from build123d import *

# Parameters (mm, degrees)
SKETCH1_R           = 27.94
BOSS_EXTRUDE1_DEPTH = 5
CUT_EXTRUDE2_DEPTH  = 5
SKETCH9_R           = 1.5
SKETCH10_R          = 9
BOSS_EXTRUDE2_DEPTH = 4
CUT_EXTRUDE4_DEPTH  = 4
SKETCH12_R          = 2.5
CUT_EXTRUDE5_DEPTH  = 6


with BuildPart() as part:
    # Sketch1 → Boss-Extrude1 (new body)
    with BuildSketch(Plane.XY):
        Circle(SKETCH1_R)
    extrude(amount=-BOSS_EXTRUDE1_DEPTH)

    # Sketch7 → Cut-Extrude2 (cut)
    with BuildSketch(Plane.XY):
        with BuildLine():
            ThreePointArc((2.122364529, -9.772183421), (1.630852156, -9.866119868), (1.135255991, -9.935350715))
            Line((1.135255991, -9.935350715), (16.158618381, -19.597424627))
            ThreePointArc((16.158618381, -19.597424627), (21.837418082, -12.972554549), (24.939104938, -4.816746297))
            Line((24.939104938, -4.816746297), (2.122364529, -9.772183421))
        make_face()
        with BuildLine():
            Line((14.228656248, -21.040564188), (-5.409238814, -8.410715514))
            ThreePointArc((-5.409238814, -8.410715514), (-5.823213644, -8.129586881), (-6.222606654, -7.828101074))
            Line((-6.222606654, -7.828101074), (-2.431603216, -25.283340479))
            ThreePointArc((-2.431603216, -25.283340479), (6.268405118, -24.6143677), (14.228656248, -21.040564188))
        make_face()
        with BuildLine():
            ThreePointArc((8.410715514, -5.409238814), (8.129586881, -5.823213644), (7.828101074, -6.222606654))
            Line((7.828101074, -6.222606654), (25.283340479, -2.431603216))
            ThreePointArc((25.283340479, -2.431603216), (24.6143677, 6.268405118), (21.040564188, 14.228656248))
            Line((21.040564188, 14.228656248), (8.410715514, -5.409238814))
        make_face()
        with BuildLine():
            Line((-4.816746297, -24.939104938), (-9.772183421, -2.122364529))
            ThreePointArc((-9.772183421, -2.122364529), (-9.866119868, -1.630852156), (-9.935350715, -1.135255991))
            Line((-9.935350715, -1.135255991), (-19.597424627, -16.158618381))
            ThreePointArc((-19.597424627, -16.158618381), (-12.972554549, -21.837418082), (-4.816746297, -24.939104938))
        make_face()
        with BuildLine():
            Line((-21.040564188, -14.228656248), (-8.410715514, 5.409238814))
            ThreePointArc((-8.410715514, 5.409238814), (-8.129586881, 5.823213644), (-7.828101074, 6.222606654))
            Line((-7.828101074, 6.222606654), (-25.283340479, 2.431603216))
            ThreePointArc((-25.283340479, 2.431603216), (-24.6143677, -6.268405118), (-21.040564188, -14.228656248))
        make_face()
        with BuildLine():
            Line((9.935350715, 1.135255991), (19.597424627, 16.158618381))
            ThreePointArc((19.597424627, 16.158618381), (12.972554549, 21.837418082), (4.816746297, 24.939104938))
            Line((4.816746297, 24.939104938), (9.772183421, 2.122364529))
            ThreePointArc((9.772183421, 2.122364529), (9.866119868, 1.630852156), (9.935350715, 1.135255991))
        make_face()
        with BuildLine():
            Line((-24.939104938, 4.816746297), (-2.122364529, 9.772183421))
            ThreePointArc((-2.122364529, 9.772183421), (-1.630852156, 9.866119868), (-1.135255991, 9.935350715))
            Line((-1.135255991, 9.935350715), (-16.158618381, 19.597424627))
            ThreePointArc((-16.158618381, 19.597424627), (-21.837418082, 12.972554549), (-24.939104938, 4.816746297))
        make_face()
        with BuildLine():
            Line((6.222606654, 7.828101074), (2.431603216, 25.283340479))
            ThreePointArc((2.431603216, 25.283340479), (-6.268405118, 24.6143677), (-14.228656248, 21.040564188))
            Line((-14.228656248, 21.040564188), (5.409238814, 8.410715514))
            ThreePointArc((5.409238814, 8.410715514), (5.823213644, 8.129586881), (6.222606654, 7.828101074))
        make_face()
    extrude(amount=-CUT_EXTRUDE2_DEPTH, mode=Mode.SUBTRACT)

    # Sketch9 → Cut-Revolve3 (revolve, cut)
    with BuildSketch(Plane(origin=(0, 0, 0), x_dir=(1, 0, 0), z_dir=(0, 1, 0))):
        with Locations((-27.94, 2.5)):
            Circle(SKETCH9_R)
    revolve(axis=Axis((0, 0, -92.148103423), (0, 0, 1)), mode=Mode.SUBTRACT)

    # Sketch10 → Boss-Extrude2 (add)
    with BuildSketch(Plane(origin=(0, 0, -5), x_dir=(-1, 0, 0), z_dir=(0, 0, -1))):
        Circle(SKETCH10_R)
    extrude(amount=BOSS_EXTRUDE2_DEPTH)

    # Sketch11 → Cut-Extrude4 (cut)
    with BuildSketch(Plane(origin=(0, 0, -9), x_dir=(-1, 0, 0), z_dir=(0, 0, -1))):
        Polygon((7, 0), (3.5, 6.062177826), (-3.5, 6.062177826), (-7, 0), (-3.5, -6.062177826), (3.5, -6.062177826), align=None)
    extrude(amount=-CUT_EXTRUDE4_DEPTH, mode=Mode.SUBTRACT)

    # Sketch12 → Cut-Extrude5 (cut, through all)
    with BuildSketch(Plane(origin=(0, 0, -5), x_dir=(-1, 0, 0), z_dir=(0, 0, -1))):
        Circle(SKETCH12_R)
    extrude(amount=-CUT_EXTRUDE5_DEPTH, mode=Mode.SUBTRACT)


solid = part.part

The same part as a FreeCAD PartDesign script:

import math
import FreeCAD as App
import Part
import Sketcher
Q = App.Units.Quantity

doc = App.newDocument("Part")
params = doc.addObject("Spreadsheet::Sheet", "Params")
for row, (alias, value) in enumerate([
    ("sketch1_diameter", "55.88 mm"),
    ("pad1_length", "5 mm"),
    ("sketch2_radius", "10 mm"),
    ("sketch2_radius2", "25.4 mm"),
    ("pocket1_length", "5 mm"),
    ("sketch3_diameter", "3 mm"),
    ("groove_angle", "360 deg"),
    ("sketch4_diameter", "18 mm"),
    ("pad2_length", "4 mm"),
    ("sketch5_width", "7 mm"),
    ("sketch5_length", "7 mm"),
    ("pocket2_length", "4 mm"),
    ("sketch6_diameter", "5 mm"),
], start=1):
    params.set(f"A{row}", alias)
    params.set(f"B{row}", "=" + value)
    params.setAlias(f"B{row}", alias)

body = doc.addObject("PartDesign::Body", "Body")

# Sketch on XY plane
sketch1 = doc.addObject("Sketcher::SketchObject", "Sketch")
body.addObject(sketch1)
sketch1.AttachmentSupport = (doc.XY_Plane, [""])
sketch1.MapMode = "FlatFace"
sketch1.addGeometry(Part.Circle(App.Vector(0, 0, 0), App.Vector(0, 0, 1), 28), False)
sketch1.addConstraint([
    Sketcher.Constraint("Coincident", 0, 3, -1, 1),
    Sketcher.Constraint("Diameter", 0, 55.88),
])
sketch1.setExpression("Constraints[1]", "Params.sketch1_diameter")
pad1 = doc.addObject("PartDesign::Pad", "Pad")
body.addObject(pad1)
pad1.Profile = sketch1
pad1.setExpression("Length", "Params.pad1_length")
pad1.Reversed = True

# Sketch on XY plane
sketch2 = doc.addObject("Sketcher::SketchObject", "Sketch001")
body.addObject(sketch2)
sketch2.AttachmentSupport = (doc.XY_Plane, [""])
sketch2.MapMode = "FlatFace"
sketch2.addGeometry([
    Part.ArcOfCircle(Part.Circle(App.Vector(0, 0, 0), App.Vector(0, 0, 1), 10), math.radians(-83.48), math.radians(-77.75)),  # 0
    Part.LineSegment(App.Vector(1.1, -9.9, 0), App.Vector(16.2, -19.6, 0)),  # 1
    Part.ArcOfCircle(Part.Circle(App.Vector(0, 0, 0), App.Vector(0, 0, 1), 25.4), math.radians(-50), math.radians(-11)),  # 2
    Part.LineSegment(App.Vector(24.9, -4.8, 0), App.Vector(2.1, -9.8, 0)),  # 3
    Part.LineSegment(App.Vector(14.2, -21, 0), App.Vector(-5.4, -8.4, 0)),  # 4
    Part.ArcOfCircle(Part.Circle(App.Vector(0, 0, 0), App.Vector(0, 0, 1), 10), math.radians(-128.48), math.radians(-122.75)),  # 5
    Part.LineSegment(App.Vector(-6.2, -7.8, 0), App.Vector(-2.4, -25.3, 0)),  # 6
    Part.ArcOfCircle(Part.Circle(App.Vector(0, 0, 0), App.Vector(0, 0, 1), 25.4), math.radians(-95), math.radians(-56)),  # 7
    Part.ArcOfCircle(Part.Circle(App.Vector(0, 0, 0), App.Vector(0, 0, 1), 10), math.radians(-38.48), math.radians(-32.75)),  # 8
    Part.LineSegment(App.Vector(7.8, -6.2, 0), App.Vector(25.3, -2.4, 0)),  # 9
    Part.ArcOfCircle(Part.Circle(App.Vector(0, 0, 0), App.Vector(0, 0, 1), 25.4), math.radians(-5), math.radians(34)),  # 10
    Part.LineSegment(App.Vector(21, 14.2, 0), App.Vector(8.4, -5.4, 0)),  # 11
    Part.LineSegment(App.Vector(-4.8, -24.9, 0), App.Vector(-9.8, -2.1, 0)),  # 12
    Part.ArcOfCircle(Part.Circle(App.Vector(0, 0, 0), App.Vector(0, 0, 1), 10), math.radians(-173.48), math.radians(-167.75)),  # 13
    Part.LineSegment(App.Vector(-9.9, -1.1, 0), App.Vector(-19.6, -16.2, 0)),  # 14
    Part.ArcOfCircle(Part.Circle(App.Vector(0, 0, 0), App.Vector(0, 0, 1), 25.4), math.radians(-140), math.radians(-101)),  # 15
    Part.LineSegment(App.Vector(-21, -14.2, 0), App.Vector(-8.4, 5.4, 0)),  # 16
    Part.ArcOfCircle(Part.Circle(App.Vector(0, 0, 0), App.Vector(0, 0, 1), 10), math.radians(141.52), math.radians(147.25)),  # 17
    Part.LineSegment(App.Vector(-7.8, 6.2, 0), App.Vector(-25.3, 2.4, 0)),  # 18
    Part.ArcOfCircle(Part.Circle(App.Vector(0, 0, 0), App.Vector(0, 0, 1), 25.4), math.radians(175), math.radians(214)),  # 19
    Part.LineSegment(App.Vector(9.9, 1.1, 0), App.Vector(19.6, 16.2, 0)),  # 20
    Part.ArcOfCircle(Part.Circle(App.Vector(0, 0, 0), App.Vector(0, 0, 1), 25.4), math.radians(40), math.radians(79)),  # 21
    Part.LineSegment(App.Vector(4.8, 24.9, 0), App.Vector(9.8, 2.1, 0)),  # 22
    Part.ArcOfCircle(Part.Circle(App.Vector(0, 0, 0), App.Vector(0, 0, 1), 10), math.radians(6.52), math.radians(12.25)),  # 23
    Part.LineSegment(App.Vector(-24.9, 4.8, 0), App.Vector(-2.1, 9.8, 0)),  # 24
    Part.ArcOfCircle(Part.Circle(App.Vector(0, 0, 0), App.Vector(0, 0, 1), 10), math.radians(96.52), math.radians(102.25)),  # 25
    Part.LineSegment(App.Vector(-1.1, 9.9, 0), App.Vector(-16.2, 19.6, 0)),  # 26
    Part.ArcOfCircle(Part.Circle(App.Vector(0, 0, 0), App.Vector(0, 0, 1), 25.4), math.radians(130), math.radians(169)),  # 27
    Part.LineSegment(App.Vector(6.2, 7.8, 0), App.Vector(2.4, 25.3, 0)),  # 28
    Part.ArcOfCircle(Part.Circle(App.Vector(0, 0, 0), App.Vector(0, 0, 1), 25.4), math.radians(85), math.radians(124)),  # 29
    Part.LineSegment(App.Vector(-14.2, 21, 0), App.Vector(5.4, 8.4, 0)),  # 30
    Part.ArcOfCircle(Part.Circle(App.Vector(0, 0, 0), App.Vector(0, 0, 1), 10), math.radians(51.52), math.radians(57.25)),  # 31
], False)
sketch2.addConstraint([
    Sketcher.Constraint("Coincident", 0, 1, 1, 1),
    Sketcher.Constraint("Coincident", 1, 2, 2, 1),
    Sketcher.Constraint("Coincident", 2, 2, 3, 1),
    Sketcher.Constraint("Tangent", 3, 2, 0, 2),
    Sketcher.Constraint("Tangent", 4, 2, 5, 2),
    Sketcher.Constraint("Coincident", 5, 1, 6, 1),
    Sketcher.Constraint("Coincident", 6, 2, 7, 1),
    Sketcher.Constraint("Coincident", 7, 2, 4, 1),
    Sketcher.Constraint("Coincident", 8, 1, 9, 1),
    Sketcher.Constraint("Coincident", 9, 2, 10, 1),
    Sketcher.Constraint("Coincident", 10, 2, 11, 1),
    Sketcher.Constraint("Tangent", 11, 2, 8, 2),
    Sketcher.Constraint("Tangent", 12, 2, 13, 2),
    Sketcher.Constraint("Coincident", 13, 1, 14, 1),
    Sketcher.Constraint("Coincident", 14, 2, 15, 1),
    Sketcher.Constraint("Coincident", 15, 2, 12, 1),
    Sketcher.Constraint("Tangent", 16, 2, 17, 2),
    Sketcher.Constraint("Coincident", 17, 1, 18, 1),
    Sketcher.Constraint("Coincident", 18, 2, 19, 1),
    Sketcher.Constraint("Coincident", 19, 2, 16, 1),
    Sketcher.Constraint("Coincident", 20, 2, 21, 1),
    Sketcher.Constraint("Coincident", 21, 2, 22, 1),
    Sketcher.Constraint("Tangent", 22, 2, 23, 2),
    Sketcher.Constraint("Coincident", 23, 1, 20, 1),
    Sketcher.Constraint("Tangent", 24, 2, 25, 2),
    Sketcher.Constraint("Coincident", 25, 1, 26, 1),
    Sketcher.Constraint("Coincident", 26, 2, 27, 1),
    Sketcher.Constraint("Coincident", 27, 2, 24, 1),
    Sketcher.Constraint("Coincident", 28, 2, 29, 1),
    Sketcher.Constraint("Coincident", 29, 2, 30, 1),
    Sketcher.Constraint("Tangent", 30, 2, 31, 2),
    Sketcher.Constraint("Coincident", 31, 1, 28, 1),
    Sketcher.Constraint("Coincident", 0, 3, -1, 1),
    Sketcher.Constraint("Coincident", 2, 3, -1, 1),
    Sketcher.Constraint("Coincident", 5, 3, -1, 1),
    Sketcher.Constraint("Coincident", 7, 3, -1, 1),
    Sketcher.Constraint("Coincident", 8, 3, -1, 1),
    Sketcher.Constraint("Coincident", 10, 3, -1, 1),
    Sketcher.Constraint("Coincident", 13, 3, -1, 1),
    Sketcher.Constraint("Coincident", 15, 3, -1, 1),
    Sketcher.Constraint("Coincident", 17, 3, -1, 1),
    Sketcher.Constraint("Coincident", 19, 3, -1, 1),
    Sketcher.Constraint("Coincident", 21, 3, -1, 1),
    Sketcher.Constraint("Coincident", 23, 3, -1, 1),
    Sketcher.Constraint("Coincident", 25, 3, -1, 1),
    Sketcher.Constraint("Coincident", 27, 3, -1, 1),
    Sketcher.Constraint("Coincident", 29, 3, -1, 1),
    Sketcher.Constraint("Coincident", 31, 3, -1, 1),
    Sketcher.Constraint("Equal", 0, 5),
    Sketcher.Constraint("Equal", 2, 7),
    Sketcher.Constraint("Equal", 5, 8),
    Sketcher.Constraint("Equal", 7, 10),
    Sketcher.Constraint("Equal", 8, 13),
    Sketcher.Constraint("Equal", 10, 15),
    Sketcher.Constraint("Equal", 13, 17),
    Sketcher.Constraint("Equal", 15, 19),
    Sketcher.Constraint("Equal", 19, 21),
    Sketcher.Constraint("Equal", 17, 23),
    Sketcher.Constraint("Equal", 23, 25),
    Sketcher.Constraint("Equal", 21, 27),
    Sketcher.Constraint("Equal", 27, 29),
    Sketcher.Constraint("Equal", 25, 31),
    Sketcher.Constraint("Parallel", 1, 4),
    Sketcher.Constraint("Perpendicular", 3, 6),
    Sketcher.Constraint("Perpendicular", 6, 9),
    Sketcher.Constraint("Perpendicular", 4, 11),
    Sketcher.Constraint("Perpendicular", 9, 12),
    Sketcher.Constraint("Parallel", 11, 14),
    Sketcher.Constraint("Parallel", 14, 16),
    Sketcher.Constraint("Perpendicular", 12, 18),
    Sketcher.Constraint("Parallel", 16, 20),
    Sketcher.Constraint("Perpendicular", 18, 22),
    Sketcher.Constraint("Perpendicular", 22, 24),
    Sketcher.Constraint("Perpendicular", 20, 26),
    Sketcher.Constraint("Perpendicular", 24, 28),
    Sketcher.Constraint("Parallel", 26, 30),
    Sketcher.Constraint("Equal", 1, 6),
    Sketcher.Constraint("Equal", 6, 9),
    Sketcher.Constraint("Equal", 9, 14),
    Sketcher.Constraint("Equal", 14, 18),
    Sketcher.Constraint("Equal", 18, 20),
    Sketcher.Constraint("Equal", 20, 26),
    Sketcher.Constraint("Equal", 26, 28),
    Sketcher.Constraint("Radius", 0, 10.0),
    Sketcher.Constraint("Radius", 2, 25.4),
    Sketcher.Constraint("DistanceY", 5, 1, -1, 1, 7.828101),
    Sketcher.Constraint("DistanceX", 0, 1, 7, 2, 13.0934),
    Sketcher.Constraint("DistanceY", 17, 1, 21, 2, 18.716498),
])
sketch2.setExpression("Constraints[83]", "Params.sketch2_radius")
sketch2.setExpression("Constraints[84]", "Params.sketch2_radius2")
pocket1 = doc.addObject("PartDesign::Pocket", "Pocket")
body.addObject(pocket1)
pocket1.Profile = sketch2
pocket1.setExpression("Length", "Params.pocket1_length")

# Sketch on XZ plane
sketch3 = doc.addObject("Sketcher::SketchObject", "Sketch002")
body.addObject(sketch3)
sketch3.AttachmentSupport = (doc.XZ_Plane, [""])
sketch3.MapMode = "FlatFace"
sketch3.addGeometry(Part.Circle(App.Vector(-27.9, -2.5, 0), App.Vector(0, 0, 1), 1.5), False)
sketch3.addConstraint([
    Sketcher.Constraint("Diameter", 0, 3.0),
    Sketcher.Constraint("DistanceY", 0, 3, -1, 1, 2.5),
    Sketcher.Constraint("DistanceX", 0, 3, -1, 1, 27.94),
])
sketch3.setExpression("Constraints[0]", "Params.sketch3_diameter")
groove = doc.addObject("PartDesign::Groove", "Groove")
body.addObject(groove)
groove.Profile = sketch3
groove.ReferenceAxis = (sketch3, ["V_Axis"])
groove.setExpression("Angle", "Params.groove_angle")

# Sketch on XY plane
sketch4 = doc.addObject("Sketcher::SketchObject", "Sketch003")
body.addObject(sketch4)
sketch4.AttachmentSupport = (doc.XY_Plane, [""])
sketch4.MapMode = "FlatFace"
sketch4.AttachmentOffset = App.Placement(App.Vector(0, 0, -5), App.Rotation())
sketch4.addGeometry(Part.Circle(App.Vector(0, 0, 0), App.Vector(0, 0, 1), 9), False)
sketch4.addConstraint([
    Sketcher.Constraint("Coincident", 0, 3, -1, 1),
    Sketcher.Constraint("Diameter", 0, 18.0),
])
sketch4.setExpression("Constraints[1]", "Params.sketch4_diameter")
pad2 = doc.addObject("PartDesign::Pad", "Pad001")
body.addObject(pad2)
pad2.Profile = sketch4
pad2.setExpression("Length", "Params.pad2_length")
pad2.Reversed = True

# Sketch on XY plane
sketch5 = doc.addObject("Sketcher::SketchObject", "Sketch004")
body.addObject(sketch5)
sketch5.AttachmentSupport = (doc.XY_Plane, [""])
sketch5.MapMode = "FlatFace"
sketch5.AttachmentOffset = App.Placement(App.Vector(0, 0, -9), App.Rotation())
sketch5.addGeometry([
    Part.LineSegment(App.Vector(-7, 0, 0), App.Vector(-4, 6, 0)),  # 0
    Part.LineSegment(App.Vector(-4, 6, 0), App.Vector(4, 6, 0)),  # 1
    Part.LineSegment(App.Vector(4, 6, 0), App.Vector(7, 0, 0)),  # 2
    Part.LineSegment(App.Vector(7, 0, 0), App.Vector(4, -6, 0)),  # 3
    Part.LineSegment(App.Vector(4, -6, 0), App.Vector(-4, -6, 0)),  # 4
    Part.LineSegment(App.Vector(-4, -6, 0), App.Vector(-7, 0, 0)),  # 5
], False)
sketch5.addConstraint([
    Sketcher.Constraint("Coincident", 0, 2, 1, 1),
    Sketcher.Constraint("Coincident", 1, 2, 2, 1),
    Sketcher.Constraint("Coincident", 2, 2, 3, 1),
    Sketcher.Constraint("Coincident", 3, 2, 4, 1),
    Sketcher.Constraint("Coincident", 4, 2, 5, 1),
    Sketcher.Constraint("Coincident", 5, 2, 0, 1),
    Sketcher.Constraint("Horizontal", 1),
    Sketcher.Constraint("Horizontal", 4),
    Sketcher.Constraint("Symmetric", 0, 2, 3, 2, -1, 1),
    Sketcher.Constraint("Symmetric", 2, 2, 5, 2, -1, 1),
    Sketcher.Constraint("PointOnObject", 2, 2, -1),
    Sketcher.Constraint("Parallel", 2, 5),
    Sketcher.Constraint("Vertical", 1, 2, 3, 2),
    Sketcher.Constraint("DistanceX", 1, 1, 1, 2, 7.0),
    Sketcher.Constraint("Angle", 0, Q("60 deg")),
    Sketcher.Constraint("Distance", 0, 7.0),
])
sketch5.setExpression("Constraints[13]", "Params.sketch5_width")
sketch5.setExpression("Constraints[15]", "Params.sketch5_length")
pocket2 = doc.addObject("PartDesign::Pocket", "Pocket001")
body.addObject(pocket2)
pocket2.Profile = sketch5
pocket2.setExpression("Length", "Params.pocket2_length")
pocket2.Reversed = True

# Sketch on XY plane
sketch6 = doc.addObject("Sketcher::SketchObject", "Sketch005")
body.addObject(sketch6)
sketch6.AttachmentSupport = (doc.XY_Plane, [""])
sketch6.MapMode = "FlatFace"
sketch6.AttachmentOffset = App.Placement(App.Vector(0, 0, -5), App.Rotation())
sketch6.addGeometry(Part.Circle(App.Vector(0, 0, 0), App.Vector(0, 0, 1), 2.5), False)
sketch6.addConstraint([
    Sketcher.Constraint("Coincident", 0, 3, -1, 1),
    Sketcher.Constraint("Diameter", 0, 5.0),
])
sketch6.setExpression("Constraints[1]", "Params.sketch6_diameter")
pocket3 = doc.addObject("PartDesign::Pocket", "Pocket002")
body.addObject(pocket3)
pocket3.Profile = sketch6
pocket3.Type = "ThroughAll"
pocket3.Reversed = True

doc.recompute()
